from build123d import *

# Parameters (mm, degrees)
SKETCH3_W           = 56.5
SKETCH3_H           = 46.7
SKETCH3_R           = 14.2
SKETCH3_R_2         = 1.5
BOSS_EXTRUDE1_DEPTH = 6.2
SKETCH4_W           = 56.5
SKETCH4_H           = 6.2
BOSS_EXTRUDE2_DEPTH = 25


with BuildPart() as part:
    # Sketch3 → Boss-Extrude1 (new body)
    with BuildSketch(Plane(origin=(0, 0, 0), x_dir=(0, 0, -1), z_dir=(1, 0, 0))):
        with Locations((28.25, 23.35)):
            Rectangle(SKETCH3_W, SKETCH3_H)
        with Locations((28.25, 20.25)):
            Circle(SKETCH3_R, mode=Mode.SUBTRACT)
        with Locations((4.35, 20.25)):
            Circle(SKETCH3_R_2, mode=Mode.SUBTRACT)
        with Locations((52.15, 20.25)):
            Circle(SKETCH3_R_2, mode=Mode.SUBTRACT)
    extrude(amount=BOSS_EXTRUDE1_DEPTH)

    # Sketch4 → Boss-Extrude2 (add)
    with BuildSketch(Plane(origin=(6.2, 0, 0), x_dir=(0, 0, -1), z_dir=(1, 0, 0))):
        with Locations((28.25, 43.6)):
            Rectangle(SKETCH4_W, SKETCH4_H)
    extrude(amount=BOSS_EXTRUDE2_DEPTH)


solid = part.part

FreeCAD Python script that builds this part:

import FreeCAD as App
import Part
import Sketcher
Q = App.Units.Quantity


def add_polygon(sketch, points):
    """Adds a closed chain of lines whose ends are joined by coincident constraints."""
    first, n = sketch.GeometryCount, len(points)
    for a, b in zip(points, points[1:] + points[:1]):
        sketch.addGeometry(Part.LineSegment(App.Vector(*a, 0), App.Vector(*b, 0)), False)
    for i in range(n):
        sketch.addConstraint(Sketcher.Constraint("Coincident", first + i, 2, first + (i + 1) % n, 1))

doc = App.newDocument("Part")
body = doc.addObject("PartDesign::Body", "Body")

sketch1 = body.newObject("Sketcher::SketchObject", "Sketch")
sketch1.AttachmentSupport = (doc.getObject("YZ_Plane"), [""])
sketch1.MapMode = "FlatFace"
add_polygon(sketch1, [(46.7, 0), (0, 0), (0, -56.5), (46.7, -56.5)])
sketch1.addGeometry(Part.Circle(App.Vector(20.2, -4.3, 0), App.Vector(0, 0, 1), 1.5), False)
sketch1.addGeometry(Part.Circle(App.Vector(20.2, -28.2, 0), App.Vector(0, 0, 1), 14.2), False)
sketch1.addGeometry(Part.Circle(App.Vector(20.2, -52.1, 0), App.Vector(0, 0, 1), 1.5), False)
sketch1.addConstraint([
    Sketcher.Constraint("Horizontal", 0),
    Sketcher.Constraint("Vertical", 1),
    Sketcher.Constraint("Horizontal", 2),
    Sketcher.Constraint("Vertical", 3),
    Sketcher.Constraint("Coincident", 0, 2, -1, 1),
    Sketcher.Constraint("Equal", 4, 6),
    Sketcher.Constraint("Vertical", 4, 3, 5, 3),
    Sketcher.Constraint("Vertical", 5, 3, 6, 3),
    Sketcher.Constraint("Diameter", 4, Q("3 mm")),
    Sketcher.Constraint("Diameter", 5, Q("28.4 mm")),
    Sketcher.Constraint("DistanceX", 0, 2, 0, 1, Q("46.7 mm")),
    Sketcher.Constraint("DistanceY", 1, 2, 1, 1, Q("56.5 mm")),
    Sketcher.Constraint("DistanceY", 5, 3, 4, 3, Q("23.9 mm")),
    Sketcher.Constraint("DistanceY", 6, 3, 5, 3, Q("23.9 mm")),
    Sketcher.Constraint("DistanceX", -1, 1, 4, 3, Q("20.25 mm")),
    Sketcher.Constraint("DistanceY", 4, 3, -1, 1, Q("4.35 mm")),
])
pad1 = body.newObject("PartDesign::Pad", "Pad")
pad1.Profile = sketch1
pad1.Length = 6.2

sketch2 = body.newObject("Sketcher::SketchObject", "Sketch001")
sketch2.AttachmentSupport = (doc.getObject("YZ_Plane"), [""])
sketch2.MapMode = "FlatFace"
sketch2.AttachmentOffset = App.Placement(App.Vector(0, 0, 6.2), App.Rotation())
add_polygon(sketch2, [(47, 0), (40, 0), (40, -56), (47, -56)])
sketch2.addConstraint([
    Sketcher.Constraint("Horizontal", 0),
    Sketcher.Constraint("Vertical", 1),
    Sketcher.Constraint("Horizontal", 2),
    Sketcher.Constraint("Vertical", 3),
    Sketcher.Constraint("PointOnObject", 0, 2, -1),
    Sketcher.Constraint("DistanceX", 0, 2, 0, 1, Q("6.2 mm")),
    Sketcher.Constraint("DistanceY", 1, 2, 1, 1, Q("56.5 mm")),
    Sketcher.Constraint("DistanceX", -1, 1, 0, 2, Q("40.5 mm")),
])
pad2 = body.newObject("PartDesign::Pad", "Pad001")
pad2.Profile = sketch2
pad2.Length = 25

doc.recompute()
